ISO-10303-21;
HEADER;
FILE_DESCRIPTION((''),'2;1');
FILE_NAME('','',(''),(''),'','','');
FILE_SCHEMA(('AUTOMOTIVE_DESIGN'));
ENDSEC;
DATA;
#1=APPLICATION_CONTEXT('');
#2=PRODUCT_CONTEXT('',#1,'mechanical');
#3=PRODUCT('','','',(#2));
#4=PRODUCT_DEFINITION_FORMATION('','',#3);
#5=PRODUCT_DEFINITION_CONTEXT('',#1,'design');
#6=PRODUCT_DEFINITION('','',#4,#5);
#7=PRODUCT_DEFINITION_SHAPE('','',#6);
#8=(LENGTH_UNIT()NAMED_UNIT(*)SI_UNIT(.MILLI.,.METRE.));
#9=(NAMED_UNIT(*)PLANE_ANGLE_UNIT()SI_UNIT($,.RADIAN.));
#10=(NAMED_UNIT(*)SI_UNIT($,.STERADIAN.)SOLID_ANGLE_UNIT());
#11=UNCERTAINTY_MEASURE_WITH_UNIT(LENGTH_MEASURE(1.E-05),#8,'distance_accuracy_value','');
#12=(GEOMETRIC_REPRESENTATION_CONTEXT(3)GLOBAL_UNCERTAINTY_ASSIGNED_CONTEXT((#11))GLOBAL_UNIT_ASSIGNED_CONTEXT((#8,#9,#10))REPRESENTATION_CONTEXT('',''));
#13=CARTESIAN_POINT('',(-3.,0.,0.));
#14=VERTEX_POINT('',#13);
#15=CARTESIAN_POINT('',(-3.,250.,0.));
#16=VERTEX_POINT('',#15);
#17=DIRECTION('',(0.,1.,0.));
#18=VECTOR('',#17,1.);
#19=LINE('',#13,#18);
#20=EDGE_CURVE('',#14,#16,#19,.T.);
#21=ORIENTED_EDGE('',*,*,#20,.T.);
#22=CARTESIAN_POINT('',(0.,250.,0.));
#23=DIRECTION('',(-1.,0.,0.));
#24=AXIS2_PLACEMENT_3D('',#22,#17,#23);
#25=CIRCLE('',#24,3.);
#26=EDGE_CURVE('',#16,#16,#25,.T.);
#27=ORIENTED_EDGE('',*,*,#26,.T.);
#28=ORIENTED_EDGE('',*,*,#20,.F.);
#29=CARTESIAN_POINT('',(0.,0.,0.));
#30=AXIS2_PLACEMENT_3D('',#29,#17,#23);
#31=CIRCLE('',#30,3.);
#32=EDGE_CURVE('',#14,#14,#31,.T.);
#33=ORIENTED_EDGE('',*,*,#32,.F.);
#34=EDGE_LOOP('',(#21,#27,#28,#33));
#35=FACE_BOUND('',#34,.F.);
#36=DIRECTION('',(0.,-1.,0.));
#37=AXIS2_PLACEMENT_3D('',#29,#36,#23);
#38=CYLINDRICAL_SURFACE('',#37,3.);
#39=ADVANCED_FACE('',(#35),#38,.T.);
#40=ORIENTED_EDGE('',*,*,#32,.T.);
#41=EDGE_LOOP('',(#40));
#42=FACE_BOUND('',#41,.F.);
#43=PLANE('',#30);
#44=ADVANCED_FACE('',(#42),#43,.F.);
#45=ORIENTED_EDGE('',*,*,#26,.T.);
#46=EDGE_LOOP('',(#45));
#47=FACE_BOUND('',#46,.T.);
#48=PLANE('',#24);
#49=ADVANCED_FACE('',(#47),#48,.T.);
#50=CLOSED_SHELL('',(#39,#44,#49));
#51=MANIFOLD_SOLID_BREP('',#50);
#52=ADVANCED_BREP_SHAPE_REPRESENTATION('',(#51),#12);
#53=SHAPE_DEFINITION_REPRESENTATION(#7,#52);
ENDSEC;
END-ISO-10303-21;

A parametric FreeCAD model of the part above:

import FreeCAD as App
import Part
import Sketcher

doc = App.newDocument("Part")
body = doc.addObject("PartDesign::Body", "Body")

# Sketch on XZ plane
sketch1 = body.newObject("Sketcher::SketchObject", "Sketch")
sketch1.AttachmentSupport = (doc.getObject("XZ_Plane"), [""])
sketch1.MapMode = "FlatFace"
sketch1.addGeometry(Part.Circle(App.Vector(0, 0, 0), App.Vector(0, 0, 1), 3), False)
sketch1.addConstraint(Sketcher.Constraint("Coincident", 0, 3, -1, 1))
sketch1.addConstraint(Sketcher.Constraint("Diameter", 0, 6.0))
pad1 = body.newObject("PartDesign::Pad", "Pad")
pad1.Profile = sketch1
pad1.Length = 250
pad1.Reversed = True

doc.recompute()
